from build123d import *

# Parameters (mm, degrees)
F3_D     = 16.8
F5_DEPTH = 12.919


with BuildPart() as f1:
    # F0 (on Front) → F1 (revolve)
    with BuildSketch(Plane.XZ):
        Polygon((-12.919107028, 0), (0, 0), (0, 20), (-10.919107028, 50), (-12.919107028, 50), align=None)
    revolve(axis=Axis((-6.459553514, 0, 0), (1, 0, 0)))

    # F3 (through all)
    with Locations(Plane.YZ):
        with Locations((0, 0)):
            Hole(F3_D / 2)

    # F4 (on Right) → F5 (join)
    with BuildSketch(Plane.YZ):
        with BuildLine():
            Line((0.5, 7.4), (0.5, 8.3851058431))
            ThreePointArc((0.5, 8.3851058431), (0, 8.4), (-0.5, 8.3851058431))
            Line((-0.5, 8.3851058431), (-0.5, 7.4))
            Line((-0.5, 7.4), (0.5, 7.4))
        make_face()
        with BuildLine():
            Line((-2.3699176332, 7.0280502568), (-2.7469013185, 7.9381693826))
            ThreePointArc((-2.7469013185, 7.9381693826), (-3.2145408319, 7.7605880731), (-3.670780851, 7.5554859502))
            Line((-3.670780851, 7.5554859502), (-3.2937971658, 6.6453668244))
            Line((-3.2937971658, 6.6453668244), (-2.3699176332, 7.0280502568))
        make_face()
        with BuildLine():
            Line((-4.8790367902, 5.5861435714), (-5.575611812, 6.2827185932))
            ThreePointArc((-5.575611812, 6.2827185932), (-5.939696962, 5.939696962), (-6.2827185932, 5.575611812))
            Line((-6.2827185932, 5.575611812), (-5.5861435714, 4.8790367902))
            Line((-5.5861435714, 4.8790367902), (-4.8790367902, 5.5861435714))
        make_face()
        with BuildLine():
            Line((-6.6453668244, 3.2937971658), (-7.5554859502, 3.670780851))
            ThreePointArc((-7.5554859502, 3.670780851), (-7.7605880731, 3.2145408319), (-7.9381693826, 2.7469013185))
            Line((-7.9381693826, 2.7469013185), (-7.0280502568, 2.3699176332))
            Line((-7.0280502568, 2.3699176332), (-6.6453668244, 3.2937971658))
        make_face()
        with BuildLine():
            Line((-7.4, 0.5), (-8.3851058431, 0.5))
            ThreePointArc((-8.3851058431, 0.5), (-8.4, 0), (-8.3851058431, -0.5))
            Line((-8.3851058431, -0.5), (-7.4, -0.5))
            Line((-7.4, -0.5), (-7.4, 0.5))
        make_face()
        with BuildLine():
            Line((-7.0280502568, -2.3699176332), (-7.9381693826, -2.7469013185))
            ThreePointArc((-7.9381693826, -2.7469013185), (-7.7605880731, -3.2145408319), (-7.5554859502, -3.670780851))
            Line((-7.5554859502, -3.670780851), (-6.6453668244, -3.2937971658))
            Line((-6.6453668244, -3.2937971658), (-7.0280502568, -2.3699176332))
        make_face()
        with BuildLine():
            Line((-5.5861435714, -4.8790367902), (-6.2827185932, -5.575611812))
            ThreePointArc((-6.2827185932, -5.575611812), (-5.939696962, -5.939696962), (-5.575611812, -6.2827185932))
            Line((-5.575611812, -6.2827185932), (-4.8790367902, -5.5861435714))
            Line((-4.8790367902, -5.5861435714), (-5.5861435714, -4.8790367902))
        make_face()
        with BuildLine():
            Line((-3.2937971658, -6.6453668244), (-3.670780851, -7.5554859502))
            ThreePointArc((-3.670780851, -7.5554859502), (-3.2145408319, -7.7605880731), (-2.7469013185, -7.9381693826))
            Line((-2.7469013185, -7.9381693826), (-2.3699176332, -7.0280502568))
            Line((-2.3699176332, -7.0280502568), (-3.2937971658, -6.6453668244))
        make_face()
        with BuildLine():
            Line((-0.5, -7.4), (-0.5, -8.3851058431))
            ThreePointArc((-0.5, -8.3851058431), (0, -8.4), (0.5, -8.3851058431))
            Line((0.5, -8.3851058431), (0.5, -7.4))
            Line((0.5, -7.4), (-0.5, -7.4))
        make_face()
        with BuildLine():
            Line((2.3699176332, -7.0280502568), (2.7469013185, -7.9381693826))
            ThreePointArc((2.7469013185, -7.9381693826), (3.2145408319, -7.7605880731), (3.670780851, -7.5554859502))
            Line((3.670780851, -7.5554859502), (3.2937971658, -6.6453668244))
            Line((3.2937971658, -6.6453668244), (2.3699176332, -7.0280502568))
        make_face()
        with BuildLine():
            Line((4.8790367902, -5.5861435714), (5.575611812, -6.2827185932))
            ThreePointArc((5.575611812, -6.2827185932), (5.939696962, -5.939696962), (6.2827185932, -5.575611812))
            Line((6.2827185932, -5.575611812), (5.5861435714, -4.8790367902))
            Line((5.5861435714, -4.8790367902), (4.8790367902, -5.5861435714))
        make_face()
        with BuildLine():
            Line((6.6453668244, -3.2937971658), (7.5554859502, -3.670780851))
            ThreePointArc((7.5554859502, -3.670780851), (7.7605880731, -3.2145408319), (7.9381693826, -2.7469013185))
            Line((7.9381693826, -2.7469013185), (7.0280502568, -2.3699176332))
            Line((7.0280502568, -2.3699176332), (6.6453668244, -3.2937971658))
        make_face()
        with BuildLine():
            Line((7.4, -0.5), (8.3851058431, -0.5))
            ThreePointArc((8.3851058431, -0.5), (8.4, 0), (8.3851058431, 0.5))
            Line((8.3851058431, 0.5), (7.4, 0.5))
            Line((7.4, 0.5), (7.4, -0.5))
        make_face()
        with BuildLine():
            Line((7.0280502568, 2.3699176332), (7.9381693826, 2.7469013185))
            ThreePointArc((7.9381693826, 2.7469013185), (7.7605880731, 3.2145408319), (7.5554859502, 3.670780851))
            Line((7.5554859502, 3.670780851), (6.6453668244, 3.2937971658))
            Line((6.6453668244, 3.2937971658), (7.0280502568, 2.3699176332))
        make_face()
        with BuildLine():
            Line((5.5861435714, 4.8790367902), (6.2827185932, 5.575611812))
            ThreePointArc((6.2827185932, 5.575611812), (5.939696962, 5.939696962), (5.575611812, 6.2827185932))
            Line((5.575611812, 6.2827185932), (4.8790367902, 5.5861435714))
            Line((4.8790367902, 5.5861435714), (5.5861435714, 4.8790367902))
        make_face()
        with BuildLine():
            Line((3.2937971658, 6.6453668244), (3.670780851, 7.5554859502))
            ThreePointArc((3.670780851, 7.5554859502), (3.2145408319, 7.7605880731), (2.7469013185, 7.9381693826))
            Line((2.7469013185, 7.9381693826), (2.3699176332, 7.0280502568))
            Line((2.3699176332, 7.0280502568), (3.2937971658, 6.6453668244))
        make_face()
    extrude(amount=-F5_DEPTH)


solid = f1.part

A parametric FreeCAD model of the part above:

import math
import FreeCAD as App
import Part
import Sketcher
from FreeCAD import Vector
Q = App.Units.Quantity

doc = App.newDocument("Part")
body = doc.addObject("PartDesign::Body", "Body")

# Sketch on XZ plane
sketch1 = body.newObject("Sketcher::SketchObject", "Sketch")
sketch1.AttachmentSupport = (doc.getObject("XZ_Plane"), [""])
sketch1.MapMode = "FlatFace"
sketch1.addGeometry([
    Part.LineSegment(Vector(-12.9, 0, 0), Vector(0, 0, 0)),  # 0
    Part.LineSegment(Vector(0, 0, 0), Vector(0, 20, 0)),  # 1
    Part.LineSegment(Vector(0, 20, 0), Vector(-10.9, 50, 0)),  # 2
    Part.LineSegment(Vector(-10.9, 50, 0), Vector(-12.9, 50, 0)),  # 3
    Part.LineSegment(Vector(-12.9, 50, 0), Vector(-12.9, 0, 0)),  # 4
], False)
sketch1.addConstraint([
    Sketcher.Constraint("Coincident", 0, 2, 1, 1),
    Sketcher.Constraint("Coincident", 1, 2, 2, 1),
    Sketcher.Constraint("Coincident", 2, 2, 3, 1),
    Sketcher.Constraint("Coincident", 3, 2, 4, 1),
    Sketcher.Constraint("Coincident", 4, 2, 0, 1),
    Sketcher.Constraint("Horizontal", 0),
    Sketcher.Constraint("Vertical", 1),
    Sketcher.Constraint("Horizontal", 3),
    Sketcher.Constraint("Vertical", 4),
    Sketcher.Constraint("Coincident", 0, 2, -1, 1),
    Sketcher.Constraint("DistanceX", 3, 2, 3, 1, Q("2 mm")),
    Sketcher.Constraint("DistanceY", 1, 1, 1, 2, Q("20 mm")),
    Sketcher.Constraint("DistanceY", 4, 2, 4, 1, Q("50 mm")),
    Sketcher.Constraint("Angle", 2, Q("110 deg")),
])
revolution = body.newObject("PartDesign::Revolution", "Revolution")
revolution.Profile = sketch1
revolution.ReferenceAxis = (sketch1, ["H_Axis"])
revolution.Angle = 360

# Sketch on YZ plane
sketch2 = body.newObject("Sketcher::SketchObject", "Sketch001")
sketch2.AttachmentSupport = (doc.getObject("YZ_Plane"), [""])
sketch2.MapMode = "FlatFace"
sketch2.addGeometry(Part.Circle(Vector(0, 0, 0), Vector(0, 0, 1), 8), False)
sketch2.addConstraint([
    Sketcher.Constraint("Coincident", 0, 3, -1, 1),
    Sketcher.Constraint("Diameter", 0, Q("16.8 mm")),
])
doc.recompute()
hole = body.newObject("PartDesign::Hole", "Hole")
hole.Profile = sketch2
hole.ThreadType = "None"
hole.Diameter = 16.8
hole.DepthType = "ThroughAll"

# Sketch on YZ plane
sketch3 = body.newObject("Sketcher::SketchObject", "Sketch002")
sketch3.AttachmentSupport = (doc.getObject("YZ_Plane"), [""])
sketch3.MapMode = "FlatFace"
sketch3.addGeometry([
    Part.LineSegment(Vector(0.5, 7.4, 0), Vector(0.5, 8.4, 0)),  # 0
    Part.ArcOfCircle(Part.Circle(Vector(0, 0, 0), Vector(0, 0, 1), 8.4), math.radians(86.59), math.radians(93.41)),  # 1
    Part.LineSegment(Vector(-0.5, 8.4, 0), Vector(-0.5, 7.4, 0)),  # 2
    Part.LineSegment(Vector(-0.5, 7.4, 0), Vector(0.5, 7.4, 0)),  # 3
    Part.LineSegment(Vector(-2.4, 7, 0), Vector(-2.7, 7.9, 0)),  # 4
    Part.ArcOfCircle(Part.Circle(Vector(0, 0, 0), Vector(0, 0, 1), 8.4), math.radians(109.09), math.radians(115.91)),  # 5
    Part.LineSegment(Vector(-3.7, 7.6, 0), Vector(-3.3, 6.6, 0)),  # 6
    Part.LineSegment(Vector(-3.3, 6.6, 0), Vector(-2.4, 7, 0)),  # 7
    Part.LineSegment(Vector(-4.9, 5.6, 0), Vector(-5.6, 6.3, 0)),  # 8
    Part.ArcOfCircle(Part.Circle(Vector(0, 0, 0), Vector(0, 0, 1), 8.4), math.radians(131.59), math.radians(138.41)),  # 9
    Part.LineSegment(Vector(-6.3, 5.6, 0), Vector(-5.6, 4.9, 0)),  # 10
    Part.LineSegment(Vector(-5.6, 4.9, 0), Vector(-4.9, 5.6, 0)),  # 11
    Part.LineSegment(Vector(-6.6, 3.3, 0), Vector(-7.6, 3.7, 0)),  # 12
    Part.ArcOfCircle(Part.Circle(Vector(0, 0, 0), Vector(0, 0, 1), 8.4), math.radians(154.09), math.radians(160.91)),  # 13
    Part.LineSegment(Vector(-7.9, 2.7, 0), Vector(-7, 2.4, 0)),  # 14
    Part.LineSegment(Vector(-7, 2.4, 0), Vector(-6.6, 3.3, 0)),  # 15
    Part.LineSegment(Vector(-7.4, 0.5, 0), Vector(-8.4, 0.5, 0)),  # 16
    Part.ArcOfCircle(Part.Circle(Vector(0, 0, 0), Vector(0, 0, 1), 8.4), math.radians(176.59), math.radians(183.41)),  # 17
    Part.LineSegment(Vector(-8.4, -0.5, 0), Vector(-7.4, -0.5, 0)),  # 18
    Part.LineSegment(Vector(-7.4, -0.5, 0), Vector(-7.4, 0.5, 0)),  # 19
    Part.LineSegment(Vector(-7, -2.4, 0), Vector(-7.9, -2.7, 0)),  # 20
    Part.ArcOfCircle(Part.Circle(Vector(0, 0, 0), Vector(0, 0, 1), 8.4), math.radians(-160.91), math.radians(-154.09)),  # 21
    Part.LineSegment(Vector(-7.6, -3.7, 0), Vector(-6.6, -3.3, 0)),  # 22
    Part.LineSegment(Vector(-6.6, -3.3, 0), Vector(-7, -2.4, 0)),  # 23
    Part.LineSegment(Vector(-5.6, -4.9, 0), Vector(-6.3, -5.6, 0)),  # 24
    Part.ArcOfCircle(Part.Circle(Vector(0, 0, 0), Vector(0, 0, 1), 8.4), math.radians(-138.41), math.radians(-131.59)),  # 25
    Part.LineSegment(Vector(-5.6, -6.3, 0), Vector(-4.9, -5.6, 0)),  # 26
    Part.LineSegment(Vector(-4.9, -5.6, 0), Vector(-5.6, -4.9, 0)),  # 27
    Part.LineSegment(Vector(-3.3, -6.6, 0), Vector(-3.7, -7.6, 0)),  # 28
    Part.ArcOfCircle(Part.Circle(Vector(0, 0, 0), Vector(0, 0, 1), 8.4), math.radians(-115.91), math.radians(-109.09)),  # 29
    Part.LineSegment(Vector(-2.7, -7.9, 0), Vector(-2.4, -7, 0)),  # 30
    Part.LineSegment(Vector(-2.4, -7, 0), Vector(-3.3, -6.6, 0)),  # 31
    Part.LineSegment(Vector(-0.5, -7.4, 0), Vector(-0.5, -8.4, 0)),  # 32
    Part.ArcOfCircle(Part.Circle(Vector(0, 0, 0), Vector(0, 0, 1), 8.4), math.radians(-93.41), math.radians(-86.59)),  # 33
    Part.LineSegment(Vector(0.5, -8.4, 0), Vector(0.5, -7.4, 0)),  # 34
    Part.LineSegment(Vector(0.5, -7.4, 0), Vector(-0.5, -7.4, 0)),  # 35
    Part.LineSegment(Vector(2.4, -7, 0), Vector(2.7, -7.9, 0)),  # 36
    Part.ArcOfCircle(Part.Circle(Vector(0, 0, 0), Vector(0, 0, 1), 8.4), math.radians(-70.91), math.radians(-64.09)),  # 37
    Part.LineSegment(Vector(3.7, -7.6, 0), Vector(3.3, -6.6, 0)),  # 38
    Part.LineSegment(Vector(3.3, -6.6, 0), Vector(2.4, -7, 0)),  # 39
    Part.LineSegment(Vector(4.9, -5.6, 0), Vector(5.6, -6.3, 0)),  # 40
    Part.ArcOfCircle(Part.Circle(Vector(0, 0, 0), Vector(0, 0, 1), 8.4), math.radians(-48.41), math.radians(-41.59)),  # 41
    Part.LineSegment(Vector(6.3, -5.6, 0), Vector(5.6, -4.9, 0)),  # 42
    Part.LineSegment(Vector(5.6, -4.9, 0), Vector(4.9, -5.6, 0)),  # 43
    Part.LineSegment(Vector(6.6, -3.3, 0), Vector(7.6, -3.7, 0)),  # 44
    Part.ArcOfCircle(Part.Circle(Vector(0, 0, 0), Vector(0, 0, 1), 8.4), math.radians(-25.91), math.radians(-19.09)),  # 45
    Part.LineSegment(Vector(7.9, -2.7, 0), Vector(7, -2.4, 0)),  # 46
    Part.LineSegment(Vector(7, -2.4, 0), Vector(6.6, -3.3, 0)),  # 47
    Part.LineSegment(Vector(7.4, -0.5, 0), Vector(8.4, -0.5, 0)),  # 48
    Part.ArcOfCircle(Part.Circle(Vector(0, 0, 0), Vector(0, 0, 1), 8.4), math.radians(-3.41), math.radians(3.41)),  # 49
    Part.LineSegment(Vector(8.4, 0.5, 0), Vector(7.4, 0.5, 0)),  # 50
    Part.LineSegment(Vector(7.4, 0.5, 0), Vector(7.4, -0.5, 0)),  # 51
    Part.LineSegment(Vector(7, 2.4, 0), Vector(7.9, 2.7, 0)),  # 52
    Part.ArcOfCircle(Part.Circle(Vector(0, 0, 0), Vector(0, 0, 1), 8.4), math.radians(19.09), math.radians(25.91)),  # 53
    Part.LineSegment(Vector(7.6, 3.7, 0), Vector(6.6, 3.3, 0)),  # 54
    Part.LineSegment(Vector(6.6, 3.3, 0), Vector(7, 2.4, 0)),  # 55
    Part.LineSegment(Vector(5.6, 4.9, 0), Vector(6.3, 5.6, 0)),  # 56
    Part.ArcOfCircle(Part.Circle(Vector(0, 0, 0), Vector(0, 0, 1), 8.4), math.radians(41.59), math.radians(48.41)),  # 57
    Part.LineSegment(Vector(5.6, 6.3, 0), Vector(4.9, 5.6, 0)),  # 58
    Part.LineSegment(Vector(4.9, 5.6, 0), Vector(5.6, 4.9, 0)),  # 59
    Part.LineSegment(Vector(3.3, 6.6, 0), Vector(3.7, 7.6, 0)),  # 60
    Part.ArcOfCircle(Part.Circle(Vector(0, 0, 0), Vector(0, 0, 1), 8.4), math.radians(64.09), math.radians(70.91)),  # 61
    Part.LineSegment(Vector(2.7, 7.9, 0), Vector(2.4, 7, 0)),  # 62
    Part.LineSegment(Vector(2.4, 7, 0), Vector(3.3, 6.6, 0)),  # 63
], False)
sketch3.addConstraint([
    Sketcher.Constraint("Coincident", 0, 2, 1, 1),
    Sketcher.Constraint("Coincident", 1, 2, 2, 1),
    Sketcher.Constraint("Coincident", 2, 2, 3, 1),
    Sketcher.Constraint("Coincident", 3, 2, 0, 1),
    Sketcher.Constraint("Coincident", 4, 2, 5, 1),
    Sketcher.Constraint("Coincident", 5, 2, 6, 1),
    Sketcher.Constraint("Coincident", 6, 2, 7, 1),
    Sketcher.Constraint("Coincident", 7, 2, 4, 1),
    Sketcher.Constraint("Coincident", 8, 2, 9, 1),
    Sketcher.Constraint("Coincident", 9, 2, 10, 1),
    Sketcher.Constraint("Coincident", 10, 2, 11, 1),
    Sketcher.Constraint("Coincident", 11, 2, 8, 1),
    Sketcher.Constraint("Coincident", 12, 2, 13, 1),
    Sketcher.Constraint("Coincident", 13, 2, 14, 1),
    Sketcher.Constraint("Coincident", 14, 2, 15, 1),
    Sketcher.Constraint("Coincident", 15, 2, 12, 1),
    Sketcher.Constraint("Coincident", 16, 2, 17, 1),
    Sketcher.Constraint("Coincident", 17, 2, 18, 1),
    Sketcher.Constraint("Coincident", 18, 2, 19, 1),
    Sketcher.Constraint("Coincident", 19, 2, 16, 1),
    Sketcher.Constraint("Coincident", 20, 2, 21, 1),
    Sketcher.Constraint("Coincident", 21, 2, 22, 1),
    Sketcher.Constraint("Coincident", 22, 2, 23, 1),
    Sketcher.Constraint("Coincident", 23, 2, 20, 1),
    Sketcher.Constraint("Coincident", 24, 2, 25, 1),
    Sketcher.Constraint("Coincident", 25, 2, 26, 1),
    Sketcher.Constraint("Coincident", 26, 2, 27, 1),
    Sketcher.Constraint("Coincident", 27, 2, 24, 1),
    Sketcher.Constraint("Coincident", 28, 2, 29, 1),
    Sketcher.Constraint("Coincident", 29, 2, 30, 1),
    Sketcher.Constraint("Coincident", 30, 2, 31, 1),
    Sketcher.Constraint("Coincident", 31, 2, 28, 1),
    Sketcher.Constraint("Coincident", 32, 2, 33, 1),
    Sketcher.Constraint("Coincident", 33, 2, 34, 1),
    Sketcher.Constraint("Coincident", 34, 2, 35, 1),
    Sketcher.Constraint("Coincident", 35, 2, 32, 1),
    Sketcher.Constraint("Coincident", 36, 2, 37, 1),
    Sketcher.Constraint("Coincident", 37, 2, 38, 1),
    Sketcher.Constraint("Coincident", 38, 2, 39, 1),
    Sketcher.Constraint("Coincident", 39, 2, 36, 1),
    Sketcher.Constraint("Coincident", 40, 2, 41, 1),
    Sketcher.Constraint("Coincident", 41, 2, 42, 1),
    Sketcher.Constraint("Coincident", 42, 2, 43, 1),
    Sketcher.Constraint("Coincident", 43, 2, 40, 1),
    Sketcher.Constraint("Coincident", 44, 2, 45, 1),
    Sketcher.Constraint("Coincident", 45, 2, 46, 1),
    Sketcher.Constraint("Coincident", 46, 2, 47, 1),
    Sketcher.Constraint("Coincident", 47, 2, 44, 1),
    Sketcher.Constraint("Coincident", 48, 2, 49, 1),
    Sketcher.Constraint("Coincident", 49, 2, 50, 1),
    Sketcher.Constraint("Coincident", 50, 2, 51, 1),
    Sketcher.Constraint("Coincident", 51, 2, 48, 1),
    Sketcher.Constraint("Coincident", 52, 2, 53, 1),
    Sketcher.Constraint("Coincident", 53, 2, 54, 1),
    Sketcher.Constraint("Coincident", 54, 2, 55, 1),
    Sketcher.Constraint("Coincident", 55, 2, 52, 1),
    Sketcher.Constraint("Coincident", 56, 2, 57, 1),
    Sketcher.Constraint("Coincident", 57, 2, 58, 1),
    Sketcher.Constraint("Coincident", 58, 2, 59, 1),
    Sketcher.Constraint("Coincident", 59, 2, 56, 1),
    Sketcher.Constraint("Coincident", 60, 2, 61, 1),
    Sketcher.Constraint("Coincident", 61, 2, 62, 1),
    Sketcher.Constraint("Coincident", 62, 2, 63, 1),
    Sketcher.Constraint("Coincident", 63, 2, 60, 1),
    Sketcher.Constraint("Vertical", 0),
    Sketcher.Constraint("Vertical", 2),
    Sketcher.Constraint("Horizontal", 3),
    Sketcher.Constraint("Horizontal", 16),
    Sketcher.Constraint("Horizontal", 18),
    Sketcher.Constraint("Vertical", 19),
    Sketcher.Constraint("Vertical", 32),
    Sketcher.Constraint("Vertical", 34),
    Sketcher.Constraint("Horizontal", 35),
    Sketcher.Constraint("Horizontal", 48),
    Sketcher.Constraint("Horizontal", 50),
    Sketcher.Constraint("Vertical", 51),
    Sketcher.Constraint("Coincident", 1, 3, -1, 1),
    Sketcher.Constraint("Coincident", 5, 3, -1, 1),
    Sketcher.Constraint("Coincident", 9, 3, -1, 1),
    Sketcher.Constraint("Coincident", 13, 3, -1, 1),
    Sketcher.Constraint("Coincident", 17, 3, -1, 1),
    Sketcher.Constraint("Coincident", 21, 3, -1, 1),
    Sketcher.Constraint("Coincident", 25, 3, -1, 1),
    Sketcher.Constraint("Coincident", 29, 3, -1, 1),
    Sketcher.Constraint("Coincident", 33, 3, -1, 1),
    Sketcher.Constraint("Coincident", 37, 3, -1, 1),
    Sketcher.Constraint("Coincident", 41, 3, -1, 1),
    Sketcher.Constraint("Coincident", 45, 3, -1, 1),
    Sketcher.Constraint("Coincident", 49, 3, -1, 1),
    Sketcher.Constraint("Coincident", 53, 3, -1, 1),
    Sketcher.Constraint("Coincident", 57, 3, -1, 1),
    Sketcher.Constraint("Coincident", 61, 3, -1, 1),
    Sketcher.Constraint("Equal", 1, 5),
    Sketcher.Constraint("Equal", 5, 9),
    Sketcher.Constraint("Equal", 9, 13),
    Sketcher.Constraint("Equal", 13, 17),
    Sketcher.Constraint("Equal", 17, 21),
    Sketcher.Constraint("Equal", 21, 25),
    Sketcher.Constraint("Equal", 25, 29),
    Sketcher.Constraint("Equal", 29, 33),
    Sketcher.Constraint("Equal", 33, 37),
    Sketcher.Constraint("Equal", 37, 41),
    Sketcher.Constraint("Equal", 41, 45),
    Sketcher.Constraint("Equal", 45, 49),
    Sketcher.Constraint("Equal", 49, 53),
    Sketcher.Constraint("Equal", 53, 57),
    Sketcher.Constraint("Equal", 57, 61),
    Sketcher.Constraint("Symmetric", 2, 2, 34, 2, -1, 1),
    Sketcher.Constraint("Symmetric", 6, 2, 38, 2, -1, 1),
    Sketcher.Constraint("Symmetric", 7, 2, 39, 2, -1, 1),
    Sketcher.Constraint("Symmetric", 10, 2, 42, 2, -1, 1),
    Sketcher.Constraint("Symmetric", 11, 2, 43, 2, -1, 1),
    Sketcher.Constraint("Symmetric", 14, 2, 46, 2, -1, 1),
    Sketcher.Constraint("Symmetric", 15, 2, 47, 2, -1, 1),
    Sketcher.Constraint("Symmetric", 18, 2, 50, 2, -1, 1),
    Sketcher.Constraint("Symmetric", 22, 2, 54, 2, -1, 1),
    Sketcher.Constraint("Symmetric", 23, 2, 55, 2, -1, 1),
    Sketcher.Constraint("Symmetric", 26, 2, 58, 2, -1, 1),
    Sketcher.Constraint("Symmetric", 27, 2, 59, 2, -1, 1),
    Sketcher.Constraint("Symmetric", 30, 2, 62, 2, -1, 1),
    Sketcher.Constraint("Symmetric", 31, 2, 63, 2, -1, 1),
    Sketcher.Constraint("Symmetric", 31, 2, 38, 2, -2),
    Sketcher.Constraint("Symmetric", 30, 2, 39, 2, -2),
    Sketcher.Constraint("Symmetric", 27, 2, 42, 2, -2),
    Sketcher.Constraint("Symmetric", 26, 2, 43, 2, -2),
    Sketcher.Constraint("Symmetric", 23, 2, 46, 2, -2),
    Sketcher.Constraint("Symmetric", 22, 2, 47, 2, -2),
    Sketcher.Constraint("Parallel", 4, 6),
    Sketcher.Constraint("Perpendicular", 6, 7),
    Sketcher.Constraint("Parallel", 8, 10),
    Sketcher.Constraint("Perpendicular", 10, 11),
    Sketcher.Constraint("Parallel", 12, 14),
    Sketcher.Constraint("Perpendicular", 14, 15),
    Sketcher.Constraint("Parallel", 7, 20),
    Sketcher.Constraint("Parallel", 20, 22),
    Sketcher.Constraint("Perpendicular", 22, 23),
    Sketcher.Constraint("Parallel", 11, 24),
    Sketcher.Constraint("Parallel", 24, 26),
    Sketcher.Constraint("Perpendicular", 26, 27),
    Sketcher.Constraint("Parallel", 15, 28),
    Sketcher.Constraint("Parallel", 28, 30),
    Sketcher.Constraint("Parallel", 23, 36),
    Sketcher.Constraint("Parallel", 36, 38),
    Sketcher.Constraint("Parallel", 27, 40),
    Sketcher.Constraint("Parallel", 40, 42),
    Sketcher.Constraint("Parallel", 31, 44),
    Sketcher.Constraint("Parallel", 44, 46),
    Sketcher.Constraint("Parallel", 39, 52),
    Sketcher.Constraint("Parallel", 52, 54),
    Sketcher.Constraint("Parallel", 43, 56),
    Sketcher.Constraint("Parallel", 56, 58),
    Sketcher.Constraint("Parallel", 47, 60),
    Sketcher.Constraint("Parallel", 60, 62),
    Sketcher.Constraint("Horizontal", 0, 2, 1, 2),
    Sketcher.Constraint("Horizontal", 32, 2, 33, 2),
    Sketcher.Constraint("Horizontal", 18, 2, 48, 2),
    Sketcher.Constraint("Horizontal", 19, 2, 49, 2),
    Sketcher.Constraint("Equal", 50, 0),
    Sketcher.Constraint("Equal", 35, 19),
    Sketcher.Constraint("Equal", 4, 6),
    Sketcher.Constraint("Equal", 6, 8),
    Sketcher.Constraint("Equal", 8, 10),
    Sketcher.Constraint("Equal", 7, 11),
    Sketcher.Constraint("Equal", 10, 12),
    Sketcher.Constraint("Equal", 12, 14),
    Sketcher.Constraint("Equal", 11, 15),
    Sketcher.Constraint("Radius", 1, Q("8.4 mm")),
    Sketcher.Constraint("DistanceX", 3, 1, 3, 2, Q("1 mm")),
    Sketcher.Constraint("Distance", 7, Q("1 mm")),
    Sketcher.Constraint("Angle", 4, Q("112.5 deg")),
    Sketcher.Constraint("DistanceY", -1, 1, 2, 2, Q("7.4 mm")),
    Sketcher.Constraint("DistanceY", -1, 1, 7, 2, Q("7.02805 mm")),
])
pad1 = body.newObject("PartDesign::Pad", "Pad")
pad1.Profile = sketch3
pad1.Length = 12.919
pad1.Reversed = True

doc.recompute()
